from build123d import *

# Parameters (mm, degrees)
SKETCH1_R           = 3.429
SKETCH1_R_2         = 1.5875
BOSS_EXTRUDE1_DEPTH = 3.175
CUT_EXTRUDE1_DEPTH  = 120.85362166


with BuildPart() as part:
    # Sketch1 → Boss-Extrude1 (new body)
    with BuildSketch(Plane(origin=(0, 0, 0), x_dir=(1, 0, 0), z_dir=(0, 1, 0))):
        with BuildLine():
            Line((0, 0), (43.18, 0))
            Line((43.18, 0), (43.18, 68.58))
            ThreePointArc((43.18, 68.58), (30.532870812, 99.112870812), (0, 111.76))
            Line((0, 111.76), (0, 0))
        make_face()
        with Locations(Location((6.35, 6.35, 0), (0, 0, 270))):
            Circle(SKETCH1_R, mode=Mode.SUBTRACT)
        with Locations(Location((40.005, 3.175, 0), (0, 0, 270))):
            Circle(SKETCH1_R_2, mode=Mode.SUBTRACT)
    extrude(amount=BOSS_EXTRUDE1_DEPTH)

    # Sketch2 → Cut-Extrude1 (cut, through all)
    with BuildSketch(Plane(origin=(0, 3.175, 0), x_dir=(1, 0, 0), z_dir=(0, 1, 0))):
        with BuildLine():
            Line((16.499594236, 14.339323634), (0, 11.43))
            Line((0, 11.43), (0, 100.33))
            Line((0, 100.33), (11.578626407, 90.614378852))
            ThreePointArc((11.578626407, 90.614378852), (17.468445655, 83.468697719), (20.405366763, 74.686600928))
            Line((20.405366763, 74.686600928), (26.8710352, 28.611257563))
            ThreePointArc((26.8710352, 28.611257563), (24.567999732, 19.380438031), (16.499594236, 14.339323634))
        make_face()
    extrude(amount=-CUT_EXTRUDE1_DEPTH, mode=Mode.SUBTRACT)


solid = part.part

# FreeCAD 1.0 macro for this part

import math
import FreeCAD as App
import Part
import Sketcher

V = App.Vector
Q = App.Units.Quantity

doc = App.newDocument("Part")
body = doc.addObject("PartDesign::Body", "Body")

sketch1 = doc.addObject("Sketcher::SketchObject", "Sketch")
body.addObject(sketch1)
sketch1.AttachmentSupport = (doc.XZ_Plane, [""])
sketch1.MapMode = "FlatFace"
sketch1.addGeometry(Part.LineSegment(V(0, 0, 0), V(43.18, 0, 0)), False)
sketch1.addGeometry(Part.LineSegment(V(43.18, 0, 0), V(43.18, -68.58, 0)), False)
sketch1.addGeometry(Part.ArcOfCircle(Part.Circle(V(0, -68.58, 0), V(0, 0, 1), 43.18), math.radians(-90), math.radians(0)), False)
sketch1.addGeometry(Part.LineSegment(V(0, -111.76, 0), V(0, 0, 0)), False)
sketch1.addGeometry(Part.Circle(V(40.005, -3.175, 0), V(0, 0, 1), 1.5875), False)
sketch1.addGeometry(Part.Circle(V(6.35, -6.35, 0), V(0, 0, 1), 3.429), False)
sketch1.addConstraint(Sketcher.Constraint("Coincident", 0, 2, 1, 1))
sketch1.addConstraint(Sketcher.Constraint("Tangent", 1, 2, 2, 2))
sketch1.addConstraint(Sketcher.Constraint("Coincident", 2, 1, 3, 1))
sketch1.addConstraint(Sketcher.Constraint("Coincident", 3, 2, 0, 1))
sketch1.addConstraint(Sketcher.Constraint("Horizontal", 0))
sketch1.addConstraint(Sketcher.Constraint("Vertical", 1))
sketch1.addConstraint(Sketcher.Constraint("Vertical", 3))
sketch1.addConstraint(Sketcher.Constraint("Coincident", 3, 2, -1, 1))
sketch1.addConstraint(Sketcher.Constraint("PointOnObject", 2, 3, -2))
sketch1.addConstraint(Sketcher.Constraint("Radius", 2, Q("1.7 in")))
sketch1.addConstraint(Sketcher.Constraint("Diameter", 5, Q("0.27 in")))
sketch1.addConstraint(Sketcher.Constraint("Diameter", 4, Q("0.125 in")))
sketch1.addConstraint(Sketcher.Constraint("DistanceY", 1, 2, 1, 1, Q("2.7 in")))
sketch1.addConstraint(Sketcher.Constraint("DistanceX", -1, 1, 5, 3, Q("0.25 in")))
sketch1.addConstraint(Sketcher.Constraint("DistanceY", 5, 3, -1, 1, Q("0.25 in")))
sketch1.addConstraint(Sketcher.Constraint("DistanceX", -1, 1, 4, 3, Q("1.575 in")))
sketch1.addConstraint(Sketcher.Constraint("DistanceY", 4, 3, -1, 1, Q("0.125 in")))
pad1 = doc.addObject("PartDesign::Pad", "Pad")
body.addObject(pad1)
pad1.Profile = sketch1
pad1.Length = Q("0.125 in")
pad1.Reversed = True

sketch2 = doc.addObject("Sketcher::SketchObject", "Sketch001")
body.addObject(sketch2)
sketch2.AttachmentSupport = (doc.XZ_Plane, [""])
sketch2.MapMode = "FlatFace"
sketch2.AttachmentOffset = App.Placement(V(0, 0, -0.125 * 25.4), App.Rotation())
sketch2.addGeometry(Part.LineSegment(V(0, -11.43, 0), V(16.499594, -14.339324, 0)), False)
sketch2.addGeometry(Part.ArcOfCircle(Part.Circle(V(14.294262, -26.846382, 0), V(0, 0, 1), 12.7), math.radians(-7.988051), math.radians(80)), False)
sketch2.addGeometry(Part.LineSegment(V(26.871035, -28.611258, 0), V(20.405367, -74.686601, 0)), False)
sketch2.addGeometry(Part.ArcOfCircle(Part.Circle(V(-4.748179, -71.15685, 0), V(0, 0, 1), 25.4), math.radians(-50), math.radians(-7.988051)), False)
sketch2.addGeometry(Part.LineSegment(V(11.578626, -90.614379, 0), V(0, -100.33, 0)), False)
sketch2.addGeometry(Part.LineSegment(V(0, -100.33, 0), V(0, -11.43, 0)), False)
sketch2.addConstraint(Sketcher.Constraint("Tangent", 0, 2, 1, 2))
sketch2.addConstraint(Sketcher.Constraint("Tangent", 1, 1, 2, 1))
sketch2.addConstraint(Sketcher.Constraint("Tangent", 2, 2, 3, 2))
sketch2.addConstraint(Sketcher.Constraint("Tangent", 3, 1, 4, 1))
sketch2.addConstraint(Sketcher.Constraint("Coincident", 4, 2, 5, 1))
sketch2.addConstraint(Sketcher.Constraint("Coincident", 5, 2, 0, 1))
sketch2.addConstraint(Sketcher.Constraint("Vertical", 5))
sketch2.addConstraint(Sketcher.Constraint("PointOnObject", 4, 2, -2))
sketch2.addConstraint(Sketcher.Constraint("Radius", 3, Q("1 in")))
sketch2.addConstraint(Sketcher.Constraint("Radius", 1, Q("0.5 in")))
sketch2.addConstraint(Sketcher.Constraint("DistanceY", 5, 1, 5, 2, Q("3.5 in")))
sketch2.addConstraint(Sketcher.Constraint("Angle", 0, Q("-10 deg")))
sketch2.addConstraint(Sketcher.Constraint("Angle", 4, Q("-140 deg")))
sketch2.addConstraint(Sketcher.Constraint("DistanceY", 4, 2, -1, 1, Q("3.95 in")))
sketch2.addConstraint(Sketcher.Constraint("DistanceY", 2, 2, -1, 1, 74.686601))
sketch2.addConstraint(Sketcher.Constraint("Distance", 2, 46.526789))
pocket1 = doc.addObject("PartDesign::Pocket", "Pocket")
body.addObject(pocket1)
pocket1.Profile = sketch2
pocket1.Type = "ThroughAll"
pocket1.Reversed = True

doc.recompute()
